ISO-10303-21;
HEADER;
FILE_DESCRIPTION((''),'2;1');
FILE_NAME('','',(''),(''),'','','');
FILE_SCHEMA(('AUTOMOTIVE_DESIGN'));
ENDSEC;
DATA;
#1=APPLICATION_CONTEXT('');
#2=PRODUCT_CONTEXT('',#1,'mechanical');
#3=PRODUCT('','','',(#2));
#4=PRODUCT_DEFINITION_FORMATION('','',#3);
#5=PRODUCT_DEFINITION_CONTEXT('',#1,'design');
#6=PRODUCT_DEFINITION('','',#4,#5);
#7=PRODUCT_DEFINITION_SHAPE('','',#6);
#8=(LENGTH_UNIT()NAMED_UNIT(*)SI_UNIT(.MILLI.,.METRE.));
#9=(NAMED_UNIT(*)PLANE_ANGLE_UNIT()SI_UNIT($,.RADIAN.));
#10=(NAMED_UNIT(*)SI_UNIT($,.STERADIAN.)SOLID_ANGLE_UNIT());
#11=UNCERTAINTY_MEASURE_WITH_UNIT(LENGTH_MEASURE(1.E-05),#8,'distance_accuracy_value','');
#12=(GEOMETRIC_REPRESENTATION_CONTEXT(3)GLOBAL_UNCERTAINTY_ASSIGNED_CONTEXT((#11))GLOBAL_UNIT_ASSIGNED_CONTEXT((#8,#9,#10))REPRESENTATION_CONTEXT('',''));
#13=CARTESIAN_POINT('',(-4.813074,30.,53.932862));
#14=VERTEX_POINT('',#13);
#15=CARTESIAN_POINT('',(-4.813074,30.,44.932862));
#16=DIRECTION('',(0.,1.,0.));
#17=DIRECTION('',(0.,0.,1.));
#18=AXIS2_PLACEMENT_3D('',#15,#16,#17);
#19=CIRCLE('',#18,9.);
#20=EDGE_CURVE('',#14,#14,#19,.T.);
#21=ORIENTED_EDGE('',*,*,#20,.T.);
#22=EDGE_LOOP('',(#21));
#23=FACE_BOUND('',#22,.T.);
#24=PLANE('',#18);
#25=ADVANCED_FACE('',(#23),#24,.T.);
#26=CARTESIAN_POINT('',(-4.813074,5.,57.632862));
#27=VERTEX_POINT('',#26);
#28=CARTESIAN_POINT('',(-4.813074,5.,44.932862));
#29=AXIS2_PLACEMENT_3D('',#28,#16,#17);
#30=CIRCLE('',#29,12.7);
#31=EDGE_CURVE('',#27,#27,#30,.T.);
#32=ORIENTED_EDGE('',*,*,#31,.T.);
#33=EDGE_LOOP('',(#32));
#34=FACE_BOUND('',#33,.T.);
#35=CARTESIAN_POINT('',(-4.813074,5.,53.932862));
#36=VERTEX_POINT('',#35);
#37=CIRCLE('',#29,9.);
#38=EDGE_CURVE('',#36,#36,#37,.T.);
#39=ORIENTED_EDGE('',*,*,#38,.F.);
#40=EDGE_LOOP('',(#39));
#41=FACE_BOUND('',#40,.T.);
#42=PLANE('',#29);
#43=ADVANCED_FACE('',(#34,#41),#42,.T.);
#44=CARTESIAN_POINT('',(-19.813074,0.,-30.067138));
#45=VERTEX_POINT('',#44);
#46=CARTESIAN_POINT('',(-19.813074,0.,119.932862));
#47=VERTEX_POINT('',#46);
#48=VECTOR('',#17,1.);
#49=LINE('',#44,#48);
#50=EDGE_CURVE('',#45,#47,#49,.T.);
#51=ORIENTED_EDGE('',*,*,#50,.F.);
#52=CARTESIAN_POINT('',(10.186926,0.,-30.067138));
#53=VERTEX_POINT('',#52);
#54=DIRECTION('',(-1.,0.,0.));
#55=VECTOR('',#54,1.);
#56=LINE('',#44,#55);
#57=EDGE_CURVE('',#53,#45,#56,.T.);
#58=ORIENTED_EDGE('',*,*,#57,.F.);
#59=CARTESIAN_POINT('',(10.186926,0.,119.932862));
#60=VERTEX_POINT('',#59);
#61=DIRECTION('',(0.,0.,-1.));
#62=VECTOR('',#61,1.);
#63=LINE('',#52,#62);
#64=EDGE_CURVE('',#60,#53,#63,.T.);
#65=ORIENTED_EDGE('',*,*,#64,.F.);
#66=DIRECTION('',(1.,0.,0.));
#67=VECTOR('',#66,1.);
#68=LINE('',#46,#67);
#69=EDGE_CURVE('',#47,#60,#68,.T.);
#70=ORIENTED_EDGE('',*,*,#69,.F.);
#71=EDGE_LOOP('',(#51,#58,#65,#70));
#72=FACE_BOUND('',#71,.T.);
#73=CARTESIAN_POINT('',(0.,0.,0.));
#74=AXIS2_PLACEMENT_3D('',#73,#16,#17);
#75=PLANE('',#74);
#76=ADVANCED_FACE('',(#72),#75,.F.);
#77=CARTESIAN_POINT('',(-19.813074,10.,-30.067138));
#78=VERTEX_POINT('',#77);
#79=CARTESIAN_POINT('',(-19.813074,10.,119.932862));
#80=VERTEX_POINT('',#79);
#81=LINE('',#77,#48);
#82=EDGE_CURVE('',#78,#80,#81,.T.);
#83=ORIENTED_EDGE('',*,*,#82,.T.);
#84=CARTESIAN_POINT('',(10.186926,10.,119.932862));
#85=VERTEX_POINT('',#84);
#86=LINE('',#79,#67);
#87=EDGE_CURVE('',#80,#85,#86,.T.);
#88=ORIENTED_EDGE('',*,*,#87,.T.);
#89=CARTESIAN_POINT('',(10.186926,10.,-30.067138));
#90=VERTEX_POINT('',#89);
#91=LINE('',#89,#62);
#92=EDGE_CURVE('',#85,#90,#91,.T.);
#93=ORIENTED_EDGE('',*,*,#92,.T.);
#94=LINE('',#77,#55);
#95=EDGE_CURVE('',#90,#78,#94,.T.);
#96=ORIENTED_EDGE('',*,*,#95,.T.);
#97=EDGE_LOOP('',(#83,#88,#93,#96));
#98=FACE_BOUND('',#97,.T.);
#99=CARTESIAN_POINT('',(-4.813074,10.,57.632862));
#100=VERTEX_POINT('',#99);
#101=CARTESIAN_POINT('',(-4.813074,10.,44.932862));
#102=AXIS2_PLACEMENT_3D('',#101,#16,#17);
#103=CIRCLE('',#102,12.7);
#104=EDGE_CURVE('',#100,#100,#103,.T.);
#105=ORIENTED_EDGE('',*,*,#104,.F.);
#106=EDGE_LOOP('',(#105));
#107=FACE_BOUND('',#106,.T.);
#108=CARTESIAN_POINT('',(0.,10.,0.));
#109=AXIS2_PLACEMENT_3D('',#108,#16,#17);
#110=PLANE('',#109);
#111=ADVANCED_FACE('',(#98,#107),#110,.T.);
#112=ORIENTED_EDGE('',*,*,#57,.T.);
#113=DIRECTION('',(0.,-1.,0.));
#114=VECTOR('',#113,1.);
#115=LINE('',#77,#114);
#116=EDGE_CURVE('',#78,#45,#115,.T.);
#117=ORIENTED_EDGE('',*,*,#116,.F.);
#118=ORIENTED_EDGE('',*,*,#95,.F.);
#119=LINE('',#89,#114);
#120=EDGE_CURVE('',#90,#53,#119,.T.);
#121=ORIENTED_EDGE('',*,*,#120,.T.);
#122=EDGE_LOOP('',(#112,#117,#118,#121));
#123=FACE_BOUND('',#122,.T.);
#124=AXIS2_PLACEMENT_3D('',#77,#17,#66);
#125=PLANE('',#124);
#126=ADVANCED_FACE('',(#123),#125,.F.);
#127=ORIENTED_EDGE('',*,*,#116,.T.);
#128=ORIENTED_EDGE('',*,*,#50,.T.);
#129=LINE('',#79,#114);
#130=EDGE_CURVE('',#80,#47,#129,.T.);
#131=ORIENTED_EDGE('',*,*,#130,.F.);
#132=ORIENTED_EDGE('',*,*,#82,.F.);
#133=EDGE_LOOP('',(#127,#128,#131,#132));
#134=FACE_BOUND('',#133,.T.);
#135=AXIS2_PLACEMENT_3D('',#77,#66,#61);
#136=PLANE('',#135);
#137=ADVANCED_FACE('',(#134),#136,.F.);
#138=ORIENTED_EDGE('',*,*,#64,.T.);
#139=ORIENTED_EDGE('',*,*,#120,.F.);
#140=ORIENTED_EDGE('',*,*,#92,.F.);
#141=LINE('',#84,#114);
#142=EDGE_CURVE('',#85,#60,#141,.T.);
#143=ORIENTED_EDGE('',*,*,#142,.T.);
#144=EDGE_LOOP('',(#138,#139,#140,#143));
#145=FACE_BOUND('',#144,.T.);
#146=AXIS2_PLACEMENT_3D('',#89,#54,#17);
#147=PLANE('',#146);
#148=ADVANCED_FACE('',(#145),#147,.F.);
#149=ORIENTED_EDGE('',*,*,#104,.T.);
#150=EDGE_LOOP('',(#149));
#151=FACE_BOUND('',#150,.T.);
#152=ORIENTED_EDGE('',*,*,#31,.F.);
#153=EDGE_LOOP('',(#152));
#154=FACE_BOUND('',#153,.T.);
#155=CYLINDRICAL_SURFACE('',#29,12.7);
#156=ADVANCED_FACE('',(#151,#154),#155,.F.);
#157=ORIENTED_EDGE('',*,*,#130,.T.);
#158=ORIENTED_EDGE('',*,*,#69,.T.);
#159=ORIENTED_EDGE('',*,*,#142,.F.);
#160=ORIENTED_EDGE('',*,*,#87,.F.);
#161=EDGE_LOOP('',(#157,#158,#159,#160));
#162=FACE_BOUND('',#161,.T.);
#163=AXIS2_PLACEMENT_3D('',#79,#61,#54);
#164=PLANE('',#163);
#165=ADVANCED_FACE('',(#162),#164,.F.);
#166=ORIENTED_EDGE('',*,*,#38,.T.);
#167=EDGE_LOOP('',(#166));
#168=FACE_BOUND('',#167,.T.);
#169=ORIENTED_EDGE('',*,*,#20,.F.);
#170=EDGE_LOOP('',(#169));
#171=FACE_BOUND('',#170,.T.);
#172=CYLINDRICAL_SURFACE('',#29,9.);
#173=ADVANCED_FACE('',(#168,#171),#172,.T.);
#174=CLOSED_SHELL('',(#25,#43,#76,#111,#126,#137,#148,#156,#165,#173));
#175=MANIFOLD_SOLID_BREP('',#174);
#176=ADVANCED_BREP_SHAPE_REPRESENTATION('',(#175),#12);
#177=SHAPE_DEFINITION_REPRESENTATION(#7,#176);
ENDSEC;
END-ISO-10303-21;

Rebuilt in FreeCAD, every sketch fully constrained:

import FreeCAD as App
import Part
import Sketcher

V = App.Vector
Q = App.Units.Quantity


def add_polygon(sketch, points):
    """Adds a closed chain of lines whose ends are joined by coincident constraints."""
    first, n = sketch.GeometryCount, len(points)
    for a, b in zip(points, points[1:] + points[:1]):
        sketch.addGeometry(Part.LineSegment(App.Vector(*a, 0), App.Vector(*b, 0)), False)
    for i in range(n):
        sketch.addConstraint(Sketcher.Constraint("Coincident", first + i, 2, first + (i + 1) % n, 1))

doc = App.newDocument("Part")
body = doc.addObject("PartDesign::Body", "Body")

sketch1 = doc.addObject("Sketcher::SketchObject", "Sketch")
body.addObject(sketch1)
sketch1.AttachmentSupport = (doc.XZ_Plane, [""])
sketch1.MapMode = "FlatFace"
add_polygon(sketch1, [(-20, -30), (-20, 120), (10, 120), (10, -30)])
sketch1.addConstraint([
    Sketcher.Constraint("Vertical", 0),
    Sketcher.Constraint("Horizontal", 1),
    Sketcher.Constraint("Vertical", 2),
    Sketcher.Constraint("Horizontal", 3),
    Sketcher.Constraint("DistanceX", 1, 1, 1, 2, Q("30 mm")),
    Sketcher.Constraint("DistanceY", 0, 1, 0, 2, Q("150 mm")),
    Sketcher.Constraint("DistanceX", 0, 2, -1, 1, Q("19.813074 mm")),
    Sketcher.Constraint("DistanceY", -1, 1, 0, 2, Q("119.932862 mm")),
])
pad1 = doc.addObject("PartDesign::Pad", "Pad")
body.addObject(pad1)
pad1.Profile = sketch1
pad1.Length = 10
pad1.Reversed = True

sketch2 = doc.addObject("Sketcher::SketchObject", "Sketch001")
body.addObject(sketch2)
sketch2.AttachmentSupport = (doc.XZ_Plane, [""])
sketch2.MapMode = "FlatFace"
sketch2.AttachmentOffset = App.Placement(V(0, 0, -10), App.Rotation())
sketch2.addGeometry([
    Part.Circle(V(-5, 45, 0), V(0, 0, 1), 13),
    Part.Circle(V(-5, 45, 0), V(0, 0, 1), 9),
], False)
sketch2.addConstraint([
    Sketcher.Constraint("Coincident", 1, 3, 0, 3),
    Sketcher.Constraint("Diameter", 1, Q("18 mm")),
    Sketcher.Constraint("Diameter", 0, Q("25.4 mm")),
    Sketcher.Constraint("DistanceX", 0, 3, -1, 1, Q("4.813074 mm")),
    Sketcher.Constraint("DistanceY", -1, 1, 0, 3, Q("44.932862 mm")),
])
pocket1 = doc.addObject("PartDesign::Pocket", "Pocket")
body.addObject(pocket1)
pocket1.Profile = sketch2
pocket1.Length = 5
pocket1.Reversed = True

sketch3 = doc.addObject("Sketcher::SketchObject", "Sketch002")
body.addObject(sketch3)
sketch3.AttachmentSupport = (doc.XZ_Plane, [""])
sketch3.MapMode = "FlatFace"
sketch3.AttachmentOffset = App.Placement(V(0, 0, -30), App.Rotation())
sketch3.addGeometry(Part.Circle(V(-5, 45, 0), V(0, 0, 1), 9), False)
sketch3.addConstraint([
    Sketcher.Constraint("Diameter", 0, Q("18 mm")),
    Sketcher.Constraint("DistanceX", 0, 3, -1, 1, Q("4.813074 mm")),
    Sketcher.Constraint("DistanceY", -1, 1, 0, 3, Q("44.932862 mm")),
])
pad2 = doc.addObject("PartDesign::Pad", "Pad001")
body.addObject(pad2)
pad2.Profile = sketch3
pad2.Length = 20

doc.recompute()
